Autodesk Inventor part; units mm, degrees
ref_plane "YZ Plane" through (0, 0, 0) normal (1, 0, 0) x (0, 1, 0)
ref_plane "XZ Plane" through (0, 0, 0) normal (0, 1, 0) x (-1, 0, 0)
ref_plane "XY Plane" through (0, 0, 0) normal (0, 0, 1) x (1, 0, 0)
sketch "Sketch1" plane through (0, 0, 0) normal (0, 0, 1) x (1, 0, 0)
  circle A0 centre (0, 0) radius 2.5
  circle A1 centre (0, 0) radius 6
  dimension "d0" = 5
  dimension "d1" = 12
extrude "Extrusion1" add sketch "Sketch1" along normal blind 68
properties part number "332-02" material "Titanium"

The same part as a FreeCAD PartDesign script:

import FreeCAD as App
import Part
import Sketcher

V = App.Vector
Q = App.Units.Quantity

doc = App.newDocument("Part")
params = doc.addObject("Spreadsheet::Sheet", "Params")
for row, (alias, value) in enumerate([
    ("sketch1_diameter", "12 mm"),
    ("sketch1_diameter2", "5 mm"),
    ("pad1_length", "68 mm"),
], start=1):
    params.set(f"A{row}", alias)
    params.set(f"B{row}", "=" + value)
    params.setAlias(f"B{row}", alias)

body = doc.addObject("PartDesign::Body", "Body")

sketch1 = body.newObject("Sketcher::SketchObject", "Sketch")
sketch1.AttachmentSupport = (doc.getObject("XY_Plane"), [""])
sketch1.MapMode = "FlatFace"
sketch1.addGeometry(Part.Circle(V(0, 0, 0), V(0, 0, 1), 6), False)
sketch1.addGeometry(Part.Circle(V(0, 0, 0), V(0, 0, 1), 2.5), False)
sketch1.addConstraint(Sketcher.Constraint("Coincident", 0, 3, -1, 1))
sketch1.addConstraint(Sketcher.Constraint("Coincident", 1, 3, -1, 1))
sketch1.addConstraint(Sketcher.Constraint("Diameter", 0, Q("12 mm")))
sketch1.addConstraint(Sketcher.Constraint("Diameter", 1, Q("5 mm")))
sketch1.setExpression("Constraints[2]", "Params.sketch1_diameter")
sketch1.setExpression("Constraints[3]", "Params.sketch1_diameter2")
pad1 = body.newObject("PartDesign::Pad", "Pad")
pad1.Profile = sketch1
pad1.setExpression("Length", "Params.pad1_length")

doc.recompute()
